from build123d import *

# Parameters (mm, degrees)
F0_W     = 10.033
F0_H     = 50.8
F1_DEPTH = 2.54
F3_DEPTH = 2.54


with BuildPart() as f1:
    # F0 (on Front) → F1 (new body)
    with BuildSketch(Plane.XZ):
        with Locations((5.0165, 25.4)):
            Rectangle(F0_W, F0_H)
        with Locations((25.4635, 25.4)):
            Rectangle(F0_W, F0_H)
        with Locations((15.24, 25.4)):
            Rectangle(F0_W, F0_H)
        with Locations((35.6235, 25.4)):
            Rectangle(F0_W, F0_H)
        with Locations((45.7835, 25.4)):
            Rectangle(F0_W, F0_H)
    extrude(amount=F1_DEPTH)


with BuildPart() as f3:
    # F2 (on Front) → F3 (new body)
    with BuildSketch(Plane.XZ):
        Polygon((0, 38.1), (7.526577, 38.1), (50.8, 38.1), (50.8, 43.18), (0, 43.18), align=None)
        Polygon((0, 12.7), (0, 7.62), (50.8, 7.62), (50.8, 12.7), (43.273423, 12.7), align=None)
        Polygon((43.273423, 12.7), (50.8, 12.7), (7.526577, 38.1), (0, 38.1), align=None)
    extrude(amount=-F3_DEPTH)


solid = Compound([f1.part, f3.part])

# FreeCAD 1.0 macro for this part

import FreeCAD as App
import Part
import Sketcher
Q = App.Units.Quantity

doc = App.newDocument("Part")
body = doc.addObject("PartDesign::Body", "Body")
body.AllowCompound = True

# Sketch on XZ plane
sketch1 = body.newObject("Sketcher::SketchObject", "Sketch")
sketch1.AttachmentSupport = (doc.getObject("XZ_Plane"), [""])
sketch1.MapMode = "FlatFace"
sketch1.addGeometry(Part.LineSegment(App.Vector(0, 51, 0), App.Vector(0, 0, 0)), False)
sketch1.addGeometry(Part.LineSegment(App.Vector(0, 0, 0), App.Vector(10, 0, 0)), False)
sketch1.addGeometry(Part.LineSegment(App.Vector(10, 0, 0), App.Vector(10, 51, 0)), False)
sketch1.addGeometry(Part.LineSegment(App.Vector(10, 51, 0), App.Vector(0, 51, 0)), False)
sketch1.addGeometry(Part.LineSegment(App.Vector(20, 51, 0), App.Vector(20, 0, 0)), False)
sketch1.addGeometry(Part.LineSegment(App.Vector(20, 0, 0), App.Vector(30, 0, 0)), False)
sketch1.addGeometry(Part.LineSegment(App.Vector(30, 0, 0), App.Vector(30, 51, 0)), False)
sketch1.addGeometry(Part.LineSegment(App.Vector(30, 51, 0), App.Vector(20, 51, 0)), False)
sketch1.addGeometry(Part.LineSegment(App.Vector(10, 51, 0), App.Vector(10, 0, 0)), False)
sketch1.addGeometry(Part.LineSegment(App.Vector(10, 0, 0), App.Vector(20, 0, 0)), False)
sketch1.addGeometry(Part.LineSegment(App.Vector(20, 0, 0), App.Vector(20, 51, 0)), False)
sketch1.addGeometry(Part.LineSegment(App.Vector(20, 51, 0), App.Vector(10, 51, 0)), False)
sketch1.addGeometry(Part.LineSegment(App.Vector(31, 51, 0), App.Vector(31, 0, 0)), False)
sketch1.addGeometry(Part.LineSegment(App.Vector(31, 0, 0), App.Vector(41, 0, 0)), False)
sketch1.addGeometry(Part.LineSegment(App.Vector(41, 0, 0), App.Vector(41, 51, 0)), False)
sketch1.addGeometry(Part.LineSegment(App.Vector(41, 51, 0), App.Vector(31, 51, 0)), False)
sketch1.addGeometry(Part.LineSegment(App.Vector(41, 51, 0), App.Vector(41, 0, 0)), False)
sketch1.addGeometry(Part.LineSegment(App.Vector(41, 0, 0), App.Vector(51, 0, 0)), False)
sketch1.addGeometry(Part.LineSegment(App.Vector(51, 0, 0), App.Vector(51, 51, 0)), False)
sketch1.addGeometry(Part.LineSegment(App.Vector(51, 51, 0), App.Vector(41, 51, 0)), False)
sketch1.addConstraint(Sketcher.Constraint("Coincident", 0, 2, 1, 1))
sketch1.addConstraint(Sketcher.Constraint("Coincident", 1, 2, 2, 1))
sketch1.addConstraint(Sketcher.Constraint("Coincident", 2, 2, 3, 1))
sketch1.addConstraint(Sketcher.Constraint("Coincident", 3, 2, 0, 1))
sketch1.addConstraint(Sketcher.Constraint("Coincident", 4, 2, 5, 1))
sketch1.addConstraint(Sketcher.Constraint("Coincident", 5, 2, 6, 1))
sketch1.addConstraint(Sketcher.Constraint("Coincident", 6, 2, 7, 1))
sketch1.addConstraint(Sketcher.Constraint("Coincident", 7, 2, 4, 1))
sketch1.addConstraint(Sketcher.Constraint("Coincident", 8, 2, 9, 1))
sketch1.addConstraint(Sketcher.Constraint("Coincident", 9, 2, 10, 1))
sketch1.addConstraint(Sketcher.Constraint("Coincident", 10, 2, 11, 1))
sketch1.addConstraint(Sketcher.Constraint("Coincident", 11, 2, 8, 1))
sketch1.addConstraint(Sketcher.Constraint("Coincident", 12, 2, 13, 1))
sketch1.addConstraint(Sketcher.Constraint("Coincident", 13, 2, 14, 1))
sketch1.addConstraint(Sketcher.Constraint("Coincident", 14, 2, 15, 1))
sketch1.addConstraint(Sketcher.Constraint("Coincident", 15, 2, 12, 1))
sketch1.addConstraint(Sketcher.Constraint("Coincident", 16, 2, 17, 1))
sketch1.addConstraint(Sketcher.Constraint("Coincident", 17, 2, 18, 1))
sketch1.addConstraint(Sketcher.Constraint("Coincident", 18, 2, 19, 1))
sketch1.addConstraint(Sketcher.Constraint("Coincident", 19, 2, 16, 1))
sketch1.addConstraint(Sketcher.Constraint("Vertical", 0))
sketch1.addConstraint(Sketcher.Constraint("Horizontal", 1))
sketch1.addConstraint(Sketcher.Constraint("Vertical", 2))
sketch1.addConstraint(Sketcher.Constraint("Horizontal", 3))
sketch1.addConstraint(Sketcher.Constraint("Vertical", 4))
sketch1.addConstraint(Sketcher.Constraint("Horizontal", 5))
sketch1.addConstraint(Sketcher.Constraint("Vertical", 6))
sketch1.addConstraint(Sketcher.Constraint("Horizontal", 7))
sketch1.addConstraint(Sketcher.Constraint("Vertical", 8))
sketch1.addConstraint(Sketcher.Constraint("Horizontal", 9))
sketch1.addConstraint(Sketcher.Constraint("Vertical", 10))
sketch1.addConstraint(Sketcher.Constraint("Horizontal", 11))
sketch1.addConstraint(Sketcher.Constraint("Vertical", 12))
sketch1.addConstraint(Sketcher.Constraint("Horizontal", 13))
sketch1.addConstraint(Sketcher.Constraint("Vertical", 14))
sketch1.addConstraint(Sketcher.Constraint("Horizontal", 15))
sketch1.addConstraint(Sketcher.Constraint("Vertical", 16))
sketch1.addConstraint(Sketcher.Constraint("Horizontal", 17))
sketch1.addConstraint(Sketcher.Constraint("Vertical", 18))
sketch1.addConstraint(Sketcher.Constraint("Horizontal", 19))
sketch1.addConstraint(Sketcher.Constraint("Coincident", 0, 2, -1, 1))
sketch1.addConstraint(Sketcher.Constraint("PointOnObject", 4, 2, -1))
sketch1.addConstraint(Sketcher.Constraint("PointOnObject", 8, 2, -1))
sketch1.addConstraint(Sketcher.Constraint("PointOnObject", 12, 2, -1))
sketch1.addConstraint(Sketcher.Constraint("PointOnObject", 16, 2, -1))
sketch1.addConstraint(Sketcher.Constraint("Horizontal", 3, 2, 6, 2))
sketch1.addConstraint(Sketcher.Constraint("Horizontal", 7, 2, 10, 2))
sketch1.addConstraint(Sketcher.Constraint("Horizontal", 11, 2, 14, 2))
sketch1.addConstraint(Sketcher.Constraint("Horizontal", 15, 2, 18, 2))
sketch1.addConstraint(Sketcher.Constraint("Equal", 3, 5))
sketch1.addConstraint(Sketcher.Constraint("Equal", 7, 9))
sketch1.addConstraint(Sketcher.Constraint("Equal", 11, 13))
sketch1.addConstraint(Sketcher.Constraint("Equal", 15, 17))
sketch1.addConstraint(Sketcher.Constraint("DistanceY", 0, 2, 0, 1, Q("2 in")))
sketch1.addConstraint(Sketcher.Constraint("DistanceX", -1, 1, 17, 2, Q("2 in")))
sketch1.addConstraint(Sketcher.Constraint("DistanceX", -1, 1, 5, 2, Q("1.2 in")))
sketch1.addConstraint(Sketcher.Constraint("DistanceX", -1, 1, 13, 2, Q("1.6 in")))
sketch1.addConstraint(Sketcher.Constraint("DistanceX", 1, 1, 1, 2, Q("0.395 in")))
sketch1.addConstraint(Sketcher.Constraint("DistanceX", -1, 1, 8, 2, Q("0.4025 in")))
pad1 = body.newObject("PartDesign::Pad", "Pad")
pad1.Profile = sketch1
pad1.Length = Q("0.1 in")
body2 = doc.addObject("PartDesign::Body", "Body001")

# Sketch on XZ plane
sketch2 = body2.newObject("Sketcher::SketchObject", "Sketch001")
sketch2.AttachmentSupport = (doc.getObject("XZ_Plane001"), [""])
sketch2.MapMode = "FlatFace"
sketch2.addGeometry(Part.LineSegment(App.Vector(8, 38, 0), App.Vector(51, 38, 0)), False)
sketch2.addGeometry(Part.LineSegment(App.Vector(51, 38, 0), App.Vector(51, 43, 0)), False)
sketch2.addGeometry(Part.LineSegment(App.Vector(51, 43, 0), App.Vector(0, 43, 0)), False)
sketch2.addGeometry(Part.LineSegment(App.Vector(0, 43, 0), App.Vector(0, 38, 0)), False)
sketch2.addGeometry(Part.LineSegment(App.Vector(0, 38, 0), App.Vector(43, 13, 0)), False)
sketch2.addGeometry(Part.LineSegment(App.Vector(43, 13, 0), App.Vector(0, 13, 0)), False)
sketch2.addGeometry(Part.LineSegment(App.Vector(0, 13, 0), App.Vector(0, 8, 0)), False)
sketch2.addGeometry(Part.LineSegment(App.Vector(0, 8, 0), App.Vector(51, 8, 0)), False)
sketch2.addGeometry(Part.LineSegment(App.Vector(51, 8, 0), App.Vector(51, 13, 0)), False)
sketch2.addGeometry(Part.LineSegment(App.Vector(51, 13, 0), App.Vector(8, 38, 0)), False)
sketch2.addConstraint(Sketcher.Constraint("Coincident", 0, 2, 1, 1))
sketch2.addConstraint(Sketcher.Constraint("Coincident", 1, 2, 2, 1))
sketch2.addConstraint(Sketcher.Constraint("Coincident", 2, 2, 3, 1))
sketch2.addConstraint(Sketcher.Constraint("Coincident", 3, 2, 4, 1))
sketch2.addConstraint(Sketcher.Constraint("Coincident", 4, 2, 5, 1))
sketch2.addConstraint(Sketcher.Constraint("Coincident", 5, 2, 6, 1))
sketch2.addConstraint(Sketcher.Constraint("Coincident", 6, 2, 7, 1))
sketch2.addConstraint(Sketcher.Constraint("Coincident", 7, 2, 8, 1))
sketch2.addConstraint(Sketcher.Constraint("Coincident", 8, 2, 9, 1))
sketch2.addConstraint(Sketcher.Constraint("Coincident", 9, 2, 0, 1))
sketch2.addConstraint(Sketcher.Constraint("Horizontal", 0))
sketch2.addConstraint(Sketcher.Constraint("Vertical", 1))
sketch2.addConstraint(Sketcher.Constraint("Horizontal", 2))
sketch2.addConstraint(Sketcher.Constraint("Vertical", 3))
sketch2.addConstraint(Sketcher.Constraint("Horizontal", 5))
sketch2.addConstraint(Sketcher.Constraint("Vertical", 6))
sketch2.addConstraint(Sketcher.Constraint("Horizontal", 7))
sketch2.addConstraint(Sketcher.Constraint("Vertical", 8))
sketch2.addConstraint(Sketcher.Constraint("PointOnObject", 2, 2, -2))
sketch2.addConstraint(Sketcher.Constraint("PointOnObject", 5, 2, -2))
sketch2.addConstraint(Sketcher.Constraint("Parallel", 4, 9))
sketch2.addConstraint(Sketcher.Constraint("Horizontal", 0, 2, 3, 2))
sketch2.addConstraint(Sketcher.Constraint("Horizontal", 5, 2, 8, 2))
sketch2.addConstraint(Sketcher.Constraint("Vertical", 1, 2, 7, 2))
sketch2.addConstraint(Sketcher.Constraint("Equal", 3, 6))
sketch2.addConstraint(Sketcher.Constraint("DistanceX", 2, 2, 2, 1, Q("2 in")))
sketch2.addConstraint(Sketcher.Constraint("DistanceY", 1, 1, 1, 2, Q("0.2 in")))
sketch2.addConstraint(Sketcher.Constraint("DistanceY", 4, 2, 0, 2, Q("1 in")))
sketch2.addConstraint(Sketcher.Constraint("DistanceY", -1, 1, 0, 2, Q("1.5 in")))
sketch2.addConstraint(Sketcher.Constraint("DistanceX", 0, 1, 0, 2, Q("43.273423 mm")))
pad2 = body2.newObject("PartDesign::Pad", "Pad001")
pad2.Profile = sketch2
pad2.Length = Q("0.1 in")
pad2.Reversed = True

doc.recompute()
